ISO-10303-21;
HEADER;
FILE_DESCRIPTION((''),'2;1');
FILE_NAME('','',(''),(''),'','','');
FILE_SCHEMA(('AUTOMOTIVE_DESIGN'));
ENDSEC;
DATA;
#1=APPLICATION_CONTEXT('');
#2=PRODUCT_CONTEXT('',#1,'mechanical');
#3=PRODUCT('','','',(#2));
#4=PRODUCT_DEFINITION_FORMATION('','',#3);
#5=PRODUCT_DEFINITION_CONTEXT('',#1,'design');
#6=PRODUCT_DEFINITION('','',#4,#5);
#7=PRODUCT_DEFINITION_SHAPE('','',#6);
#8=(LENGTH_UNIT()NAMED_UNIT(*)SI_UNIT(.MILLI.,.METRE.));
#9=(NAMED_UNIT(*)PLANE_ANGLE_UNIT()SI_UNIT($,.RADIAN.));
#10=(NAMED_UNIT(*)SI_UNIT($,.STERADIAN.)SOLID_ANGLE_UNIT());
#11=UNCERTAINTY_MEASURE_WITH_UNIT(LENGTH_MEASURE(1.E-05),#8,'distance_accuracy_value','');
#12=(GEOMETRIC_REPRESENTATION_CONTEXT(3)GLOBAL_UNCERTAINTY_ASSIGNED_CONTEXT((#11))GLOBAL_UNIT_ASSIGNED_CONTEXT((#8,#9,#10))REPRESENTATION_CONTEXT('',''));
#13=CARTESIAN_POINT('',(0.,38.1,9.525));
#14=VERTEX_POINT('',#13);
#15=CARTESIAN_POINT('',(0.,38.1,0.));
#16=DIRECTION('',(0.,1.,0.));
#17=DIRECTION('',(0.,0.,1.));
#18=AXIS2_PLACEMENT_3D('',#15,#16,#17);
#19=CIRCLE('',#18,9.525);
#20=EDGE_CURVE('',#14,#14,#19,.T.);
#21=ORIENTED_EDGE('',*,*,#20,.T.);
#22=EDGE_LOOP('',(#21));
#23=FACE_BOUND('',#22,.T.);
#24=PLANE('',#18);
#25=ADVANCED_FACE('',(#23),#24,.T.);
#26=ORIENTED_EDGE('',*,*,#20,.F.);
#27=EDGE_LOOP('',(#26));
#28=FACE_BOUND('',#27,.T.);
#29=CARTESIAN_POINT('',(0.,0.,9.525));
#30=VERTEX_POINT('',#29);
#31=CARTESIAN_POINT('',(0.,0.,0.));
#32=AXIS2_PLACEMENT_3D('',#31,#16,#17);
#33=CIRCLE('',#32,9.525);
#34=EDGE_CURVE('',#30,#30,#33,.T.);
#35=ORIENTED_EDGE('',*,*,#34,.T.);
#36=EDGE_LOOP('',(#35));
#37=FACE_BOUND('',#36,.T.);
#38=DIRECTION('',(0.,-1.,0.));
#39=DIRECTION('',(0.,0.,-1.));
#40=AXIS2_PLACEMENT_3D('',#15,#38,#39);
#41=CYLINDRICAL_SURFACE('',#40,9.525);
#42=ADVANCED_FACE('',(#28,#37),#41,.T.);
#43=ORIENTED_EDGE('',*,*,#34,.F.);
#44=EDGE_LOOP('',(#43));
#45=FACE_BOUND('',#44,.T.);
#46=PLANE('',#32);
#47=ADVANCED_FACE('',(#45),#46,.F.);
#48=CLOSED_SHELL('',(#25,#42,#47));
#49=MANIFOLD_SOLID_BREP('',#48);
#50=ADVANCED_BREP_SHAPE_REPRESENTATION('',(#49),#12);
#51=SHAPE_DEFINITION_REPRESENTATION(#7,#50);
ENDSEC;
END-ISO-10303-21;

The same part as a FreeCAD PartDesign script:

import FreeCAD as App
import Part
import Sketcher

V = App.Vector
Q = App.Units.Quantity

doc = App.newDocument("Part")
body = doc.addObject("PartDesign::Body", "Body")

sketch1 = body.newObject("Sketcher::SketchObject", "Sketch")
sketch1.AttachmentSupport = (doc.getObject("XZ_Plane"), [""])
sketch1.MapMode = "FlatFace"
sketch1.addGeometry(Part.Circle(V(0, 0, 0), V(0, 0, 1), 10), False)
sketch1.addConstraint(Sketcher.Constraint("Coincident", 0, 3, -1, 1))
sketch1.addConstraint(Sketcher.Constraint("Diameter", 0, Q("0.75 in")))
pad1 = body.newObject("PartDesign::Pad", "Pad")
pad1.Profile = sketch1
pad1.Length = Q("1.5 in")
pad1.Reversed = True

doc.recompute()
